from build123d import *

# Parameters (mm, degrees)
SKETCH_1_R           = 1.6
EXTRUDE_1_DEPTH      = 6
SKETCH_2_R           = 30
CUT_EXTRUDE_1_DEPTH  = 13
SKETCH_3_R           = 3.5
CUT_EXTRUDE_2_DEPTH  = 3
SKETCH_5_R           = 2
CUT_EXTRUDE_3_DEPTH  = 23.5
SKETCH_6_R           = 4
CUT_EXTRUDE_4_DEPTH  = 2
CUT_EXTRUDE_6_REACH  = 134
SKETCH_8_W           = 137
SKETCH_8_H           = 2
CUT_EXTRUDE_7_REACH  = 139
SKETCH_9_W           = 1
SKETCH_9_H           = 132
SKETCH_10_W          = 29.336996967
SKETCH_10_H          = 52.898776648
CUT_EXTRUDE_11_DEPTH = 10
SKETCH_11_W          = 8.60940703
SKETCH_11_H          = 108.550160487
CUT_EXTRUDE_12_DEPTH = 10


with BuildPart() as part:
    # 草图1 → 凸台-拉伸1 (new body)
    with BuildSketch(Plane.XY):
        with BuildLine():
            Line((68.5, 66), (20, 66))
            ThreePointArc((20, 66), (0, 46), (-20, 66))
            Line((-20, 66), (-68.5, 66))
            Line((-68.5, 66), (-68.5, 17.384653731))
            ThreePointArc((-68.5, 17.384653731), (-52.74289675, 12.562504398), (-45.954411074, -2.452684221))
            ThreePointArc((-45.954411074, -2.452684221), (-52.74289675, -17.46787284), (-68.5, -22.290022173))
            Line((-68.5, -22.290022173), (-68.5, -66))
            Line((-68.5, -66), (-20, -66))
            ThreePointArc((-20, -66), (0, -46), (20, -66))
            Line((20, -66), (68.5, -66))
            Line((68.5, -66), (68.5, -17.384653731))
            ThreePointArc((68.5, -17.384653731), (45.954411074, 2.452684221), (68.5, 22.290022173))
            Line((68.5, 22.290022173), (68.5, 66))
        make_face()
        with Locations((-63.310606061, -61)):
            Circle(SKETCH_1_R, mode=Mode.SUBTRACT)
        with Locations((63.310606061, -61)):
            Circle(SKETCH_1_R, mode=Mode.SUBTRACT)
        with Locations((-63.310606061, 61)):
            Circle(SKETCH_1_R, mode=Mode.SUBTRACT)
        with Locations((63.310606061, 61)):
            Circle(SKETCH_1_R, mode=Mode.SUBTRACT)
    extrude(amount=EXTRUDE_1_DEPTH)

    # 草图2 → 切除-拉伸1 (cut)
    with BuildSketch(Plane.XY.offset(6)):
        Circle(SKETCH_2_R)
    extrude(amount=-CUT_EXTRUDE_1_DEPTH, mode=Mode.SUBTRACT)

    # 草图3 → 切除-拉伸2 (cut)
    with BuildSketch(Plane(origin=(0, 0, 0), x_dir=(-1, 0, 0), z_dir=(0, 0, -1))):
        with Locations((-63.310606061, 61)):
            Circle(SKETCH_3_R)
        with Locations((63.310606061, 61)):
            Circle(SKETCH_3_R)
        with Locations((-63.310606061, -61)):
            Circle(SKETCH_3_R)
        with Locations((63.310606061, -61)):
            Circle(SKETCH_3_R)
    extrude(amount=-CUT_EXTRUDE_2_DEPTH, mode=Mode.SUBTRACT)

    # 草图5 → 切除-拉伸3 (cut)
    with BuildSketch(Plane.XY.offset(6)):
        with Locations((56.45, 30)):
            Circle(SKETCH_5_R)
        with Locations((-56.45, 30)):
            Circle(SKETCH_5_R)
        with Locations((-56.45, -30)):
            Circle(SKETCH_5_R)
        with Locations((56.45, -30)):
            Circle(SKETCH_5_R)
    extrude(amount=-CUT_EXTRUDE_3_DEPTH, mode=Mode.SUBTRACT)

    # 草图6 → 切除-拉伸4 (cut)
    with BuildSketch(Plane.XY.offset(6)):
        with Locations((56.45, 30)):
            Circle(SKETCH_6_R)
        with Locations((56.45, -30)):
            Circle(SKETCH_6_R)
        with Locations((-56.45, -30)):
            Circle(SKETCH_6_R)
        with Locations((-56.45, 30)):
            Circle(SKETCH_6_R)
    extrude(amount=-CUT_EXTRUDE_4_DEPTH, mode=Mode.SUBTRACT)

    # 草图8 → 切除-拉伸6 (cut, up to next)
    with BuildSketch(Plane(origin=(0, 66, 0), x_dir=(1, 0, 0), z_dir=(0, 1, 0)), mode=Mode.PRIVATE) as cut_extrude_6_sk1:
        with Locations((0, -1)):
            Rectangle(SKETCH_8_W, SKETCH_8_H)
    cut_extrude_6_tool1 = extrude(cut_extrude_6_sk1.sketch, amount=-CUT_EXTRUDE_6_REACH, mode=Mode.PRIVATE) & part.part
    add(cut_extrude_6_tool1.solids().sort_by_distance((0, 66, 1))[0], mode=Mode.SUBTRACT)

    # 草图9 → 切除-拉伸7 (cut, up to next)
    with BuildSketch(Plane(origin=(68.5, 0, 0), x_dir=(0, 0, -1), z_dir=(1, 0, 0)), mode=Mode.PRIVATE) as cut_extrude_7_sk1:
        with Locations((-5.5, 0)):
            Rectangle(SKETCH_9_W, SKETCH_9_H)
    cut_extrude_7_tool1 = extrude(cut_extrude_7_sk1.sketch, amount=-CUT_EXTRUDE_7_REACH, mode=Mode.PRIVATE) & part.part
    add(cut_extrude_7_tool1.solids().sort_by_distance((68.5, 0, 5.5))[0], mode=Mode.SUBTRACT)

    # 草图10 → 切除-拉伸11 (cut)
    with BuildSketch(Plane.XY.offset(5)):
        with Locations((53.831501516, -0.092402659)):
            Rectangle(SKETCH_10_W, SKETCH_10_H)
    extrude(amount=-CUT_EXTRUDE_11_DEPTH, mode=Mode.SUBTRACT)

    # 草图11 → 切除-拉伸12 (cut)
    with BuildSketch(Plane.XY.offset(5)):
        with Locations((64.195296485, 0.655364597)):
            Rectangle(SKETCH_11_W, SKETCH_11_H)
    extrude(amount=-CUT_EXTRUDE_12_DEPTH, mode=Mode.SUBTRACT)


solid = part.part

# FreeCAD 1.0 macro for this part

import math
import FreeCAD as App
import Part
import Sketcher

V = App.Vector

doc = App.newDocument("Part")
body = doc.addObject("PartDesign::Body", "Body")

# Sketch on XY plane
sketch1 = body.newObject("Sketcher::SketchObject", "Sketch")
sketch1.AttachmentSupport = (doc.getObject("XY_Plane"), [""])
sketch1.MapMode = "FlatFace"
sketch1.addGeometry(Part.LineSegment(V(68.5, 66, 0), V(20, 66, 0)), False)
sketch1.addGeometry(Part.ArcOfCircle(Part.Circle(V(0, 66, 0), V(0, 0, 1), 20), math.radians(180), math.radians(360)), False)
sketch1.addGeometry(Part.LineSegment(V(-20, 66, 0), V(-68.5, 66, 0)), False)
sketch1.addGeometry(Part.LineSegment(V(-68.5, 66, 0), V(-68.5, 17.4, 0)), False)
sketch1.addGeometry(Part.ArcOfCircle(Part.Circle(V(-66, -2.5, 0), V(0, 0, 1), 20), math.radians(0), math.radians(97)), False)
sketch1.addGeometry(Part.ArcOfCircle(Part.Circle(V(-66, -2.5, 0), V(0, 0, 1), 20), math.radians(-97), math.radians(0)), False)
sketch1.addGeometry(Part.LineSegment(V(-68.5, -22.3, 0), V(-68.5, -66, 0)), False)
sketch1.addGeometry(Part.LineSegment(V(-68.5, -66, 0), V(-20, -66, 0)), False)
sketch1.addGeometry(Part.ArcOfCircle(Part.Circle(V(0, -66, 0), V(0, 0, 1), 20), math.radians(0), math.radians(180)), False)
sketch1.addGeometry(Part.LineSegment(V(20, -66, 0), V(68.5, -66, 0)), False)
sketch1.addGeometry(Part.LineSegment(V(68.5, -66, 0), V(68.5, -17.4, 0)), False)
sketch1.addGeometry(Part.ArcOfCircle(Part.Circle(V(66, 2.5, 0), V(0, 0, 1), 20), math.radians(83), math.radians(277)), False)
sketch1.addGeometry(Part.LineSegment(V(68.5, 22.3, 0), V(68.5, 66, 0)), False)
sketch1.addGeometry(Part.Circle(V(-63.3, -61, 0), V(0, 0, 1), 1.6), False)
sketch1.addGeometry(Part.Circle(V(63.3, -61, 0), V(0, 0, 1), 1.6), False)
sketch1.addGeometry(Part.Circle(V(-63.3, 61, 0), V(0, 0, 1), 1.6), False)
sketch1.addGeometry(Part.Circle(V(63.3, 61, 0), V(0, 0, 1), 1.6), False)
sketch1.addConstraint(Sketcher.Constraint("Coincident", 0, 2, 1, 2))
sketch1.addConstraint(Sketcher.Constraint("Coincident", 1, 1, 2, 1))
sketch1.addConstraint(Sketcher.Constraint("Coincident", 2, 2, 3, 1))
sketch1.addConstraint(Sketcher.Constraint("Coincident", 3, 2, 4, 2))
sketch1.addConstraint(Sketcher.Constraint("Tangent", 4, 1, 5, 2))
sketch1.addConstraint(Sketcher.Constraint("Coincident", 5, 1, 6, 1))
sketch1.addConstraint(Sketcher.Constraint("Coincident", 6, 2, 7, 1))
sketch1.addConstraint(Sketcher.Constraint("Coincident", 7, 2, 8, 2))
sketch1.addConstraint(Sketcher.Constraint("Coincident", 8, 1, 9, 1))
sketch1.addConstraint(Sketcher.Constraint("Coincident", 9, 2, 10, 1))
sketch1.addConstraint(Sketcher.Constraint("Coincident", 10, 2, 11, 2))
sketch1.addConstraint(Sketcher.Constraint("Coincident", 11, 1, 12, 1))
sketch1.addConstraint(Sketcher.Constraint("Coincident", 12, 2, 0, 1))
sketch1.addConstraint(Sketcher.Constraint("Horizontal", 0))
sketch1.addConstraint(Sketcher.Constraint("Horizontal", 2))
sketch1.addConstraint(Sketcher.Constraint("Vertical", 3))
sketch1.addConstraint(Sketcher.Constraint("Vertical", 6))
sketch1.addConstraint(Sketcher.Constraint("Horizontal", 7))
sketch1.addConstraint(Sketcher.Constraint("Horizontal", 9))
sketch1.addConstraint(Sketcher.Constraint("Vertical", 10))
sketch1.addConstraint(Sketcher.Constraint("Vertical", 12))
sketch1.addConstraint(Sketcher.Constraint("Equal", 1, 4))
sketch1.addConstraint(Sketcher.Constraint("Equal", 4, 5))
sketch1.addConstraint(Sketcher.Constraint("Equal", 5, 8))
sketch1.addConstraint(Sketcher.Constraint("Equal", 8, 11))
sketch1.addConstraint(Sketcher.Constraint("Equal", 13, 14))
sketch1.addConstraint(Sketcher.Constraint("Equal", 14, 15))
sketch1.addConstraint(Sketcher.Constraint("Equal", 15, 16))
sketch1.addConstraint(Sketcher.Constraint("Symmetric", 1, 3, 8, 3, -1, 1))
sketch1.addConstraint(Sketcher.Constraint("Symmetric", 4, 3, 11, 3, -1, 1))
sketch1.addConstraint(Sketcher.Constraint("Symmetric", 14, 3, 15, 3, -1, 1))
sketch1.addConstraint(Sketcher.Constraint("Symmetric", 13, 3, 16, 3, -1, 1))
sketch1.addConstraint(Sketcher.Constraint("Symmetric", 2, 2, 9, 2, -1, 1))
sketch1.addConstraint(Sketcher.Constraint("Symmetric", 6, 2, 12, 2, -1, 1))
sketch1.addConstraint(Sketcher.Constraint("Symmetric", 13, 3, 14, 3, -2))
sketch1.addConstraint(Sketcher.Constraint("Symmetric", 0, 2, 1, 1, -2))
sketch1.addConstraint(Sketcher.Constraint("Horizontal", 1, 3, 0, 2))
sketch1.addConstraint(Sketcher.Constraint("Horizontal", 5, 3, 4, 1))
sketch1.addConstraint(Sketcher.Constraint("Vertical", 3, 2, 5, 1))
sketch1.addConstraint(Sketcher.Constraint("Radius", 1, 20.0))
sketch1.addConstraint(Sketcher.Constraint("Diameter", 13, 3.2))
sketch1.addConstraint(Sketcher.Constraint("DistanceX", 0, 2, 0, 1, 48.5))
sketch1.addConstraint(Sketcher.Constraint("DistanceY", -1, 1, 1, 3, 66.0))
sketch1.addConstraint(Sketcher.Constraint("DistanceY", 13, 3, -1, 1, 61.0))
sketch1.addConstraint(Sketcher.Constraint("DistanceY", 3, 2, 3, 1, 48.615346))
sketch1.addConstraint(Sketcher.Constraint("DistanceY", 6, 2, 6, 1, 43.709978))
sketch1.addConstraint(Sketcher.Constraint("DistanceX", 13, 3, -1, 1, 63.310606))
pad1 = body.newObject("PartDesign::Pad", "Pad")
pad1.Profile = sketch1
pad1.Length = 6

# Sketch on XY plane
sketch2 = body.newObject("Sketcher::SketchObject", "Sketch001")
sketch2.AttachmentSupport = (doc.getObject("XY_Plane"), [""])
sketch2.MapMode = "FlatFace"
sketch2.AttachmentOffset = App.Placement(V(0, 0, 6), App.Rotation())
sketch2.addGeometry(Part.Circle(V(0, 0, 0), V(0, 0, 1), 30), False)
sketch2.addConstraint(Sketcher.Constraint("Coincident", 0, 3, -1, 1))
sketch2.addConstraint(Sketcher.Constraint("Diameter", 0, 60.0))
pocket1 = body.newObject("PartDesign::Pocket", "Pocket")
pocket1.Profile = sketch2
pocket1.Length = 13

# Sketch on XY plane
sketch3 = body.newObject("Sketcher::SketchObject", "Sketch002")
sketch3.AttachmentSupport = (doc.getObject("XY_Plane"), [""])
sketch3.MapMode = "FlatFace"
sketch3.addGeometry(Part.Circle(V(63.3, 61, 0), V(0, 0, 1), 3.5), False)
sketch3.addGeometry(Part.Circle(V(-63.3, 61, 0), V(0, 0, 1), 3.5), False)
sketch3.addGeometry(Part.Circle(V(63.3, -61, 0), V(0, 0, 1), 3.5), False)
sketch3.addGeometry(Part.Circle(V(-63.3, -61, 0), V(0, 0, 1), 3.5), False)
sketch3.addConstraint(Sketcher.Constraint("Equal", 0, 1))
sketch3.addConstraint(Sketcher.Constraint("Equal", 1, 2))
sketch3.addConstraint(Sketcher.Constraint("Equal", 2, 3))
sketch3.addConstraint(Sketcher.Constraint("Symmetric", 1, 3, 2, 3, -1, 1))
sketch3.addConstraint(Sketcher.Constraint("Symmetric", 0, 3, 3, 3, -1, 1))
sketch3.addConstraint(Sketcher.Constraint("Symmetric", 0, 3, 1, 3, -2))
sketch3.addConstraint(Sketcher.Constraint("Diameter", 0, 7.0))
sketch3.addConstraint(Sketcher.Constraint("DistanceY", -1, 1, 0, 3, 61.0))
sketch3.addConstraint(Sketcher.Constraint("DistanceX", -1, 1, 0, 3, 63.310606))
pocket2 = body.newObject("PartDesign::Pocket", "Pocket001")
pocket2.Profile = sketch3
pocket2.Length = 3
pocket2.Reversed = True

# Sketch on XY plane
sketch4 = body.newObject("Sketcher::SketchObject", "Sketch003")
sketch4.AttachmentSupport = (doc.getObject("XY_Plane"), [""])
sketch4.MapMode = "FlatFace"
sketch4.AttachmentOffset = App.Placement(V(0, 0, 6), App.Rotation())
sketch4.addGeometry(Part.Circle(V(56.5, 30, 0), V(0, 0, 1), 2), False)
sketch4.addGeometry(Part.Circle(V(-56.5, 30, 0), V(0, 0, 1), 2), False)
sketch4.addGeometry(Part.Circle(V(-56.5, -30, 0), V(0, 0, 1), 2), False)
sketch4.addGeometry(Part.Circle(V(56.5, -30, 0), V(0, 0, 1), 2), False)
sketch4.addConstraint(Sketcher.Constraint("Equal", 0, 1))
sketch4.addConstraint(Sketcher.Constraint("Equal", 1, 2))
sketch4.addConstraint(Sketcher.Constraint("Equal", 2, 3))
sketch4.addConstraint(Sketcher.Constraint("Symmetric", 0, 3, 2, 3, -1, 1))
sketch4.addConstraint(Sketcher.Constraint("Symmetric", 1, 3, 3, 3, -1, 1))
sketch4.addConstraint(Sketcher.Constraint("Symmetric", 0, 3, 1, 3, -2))
sketch4.addConstraint(Sketcher.Constraint("Diameter", 0, 4.0))
sketch4.addConstraint(Sketcher.Constraint("DistanceY", -1, 1, 0, 3, 30.0))
sketch4.addConstraint(Sketcher.Constraint("DistanceX", 1, 3, 0, 3, 112.9))
pocket3 = body.newObject("PartDesign::Pocket", "Pocket002")
pocket3.Profile = sketch4
pocket3.Length = 23.5

# Sketch on XY plane
sketch5 = body.newObject("Sketcher::SketchObject", "Sketch004")
sketch5.AttachmentSupport = (doc.getObject("XY_Plane"), [""])
sketch5.MapMode = "FlatFace"
sketch5.AttachmentOffset = App.Placement(V(0, 0, 6), App.Rotation())
sketch5.addGeometry(Part.Circle(V(56.5, 30, 0), V(0, 0, 1), 4), False)
sketch5.addGeometry(Part.Circle(V(56.5, -30, 0), V(0, 0, 1), 4), False)
sketch5.addGeometry(Part.Circle(V(-56.5, -30, 0), V(0, 0, 1), 4), False)
sketch5.addGeometry(Part.Circle(V(-56.5, 30, 0), V(0, 0, 1), 4), False)
sketch5.addConstraint(Sketcher.Constraint("Equal", 0, 1))
sketch5.addConstraint(Sketcher.Constraint("Equal", 1, 2))
sketch5.addConstraint(Sketcher.Constraint("Equal", 2, 3))
sketch5.addConstraint(Sketcher.Constraint("Symmetric", 0, 3, 2, 3, -1, 1))
sketch5.addConstraint(Sketcher.Constraint("Symmetric", 1, 3, 3, 3, -1, 1))
sketch5.addConstraint(Sketcher.Constraint("Symmetric", 1, 3, 2, 3, -2))
sketch5.addConstraint(Sketcher.Constraint("Diameter", 0, 8.0))
sketch5.addConstraint(Sketcher.Constraint("DistanceY", -1, 1, 0, 3, 30.0))
sketch5.addConstraint(Sketcher.Constraint("DistanceX", 2, 3, 1, 3, 112.9))
pocket4 = body.newObject("PartDesign::Pocket", "Pocket003")
pocket4.Profile = sketch5
pocket4.Length = 2

# Sketch on XZ plane
sketch6 = body.newObject("Sketcher::SketchObject", "Sketch005")
sketch6.AttachmentSupport = (doc.getObject("XZ_Plane"), [""])
sketch6.MapMode = "FlatFace"
sketch6.AttachmentOffset = App.Placement(V(0, 0, -66), App.Rotation())
sketch6.addGeometry(Part.LineSegment(V(-68.5, 0, 0), V(-68.5, 2, 0)), False)
sketch6.addGeometry(Part.LineSegment(V(-68.5, 2, 0), V(68.5, 2, 0)), False)
sketch6.addGeometry(Part.LineSegment(V(68.5, 2, 0), V(68.5, 0, 0)), False)
sketch6.addGeometry(Part.LineSegment(V(68.5, 0, 0), V(-68.5, 0, 0)), False)
sketch6.addConstraint(Sketcher.Constraint("Coincident", 0, 2, 1, 1))
sketch6.addConstraint(Sketcher.Constraint("Coincident", 1, 2, 2, 1))
sketch6.addConstraint(Sketcher.Constraint("Coincident", 2, 2, 3, 1))
sketch6.addConstraint(Sketcher.Constraint("Coincident", 3, 2, 0, 1))
sketch6.addConstraint(Sketcher.Constraint("Vertical", 0))
sketch6.addConstraint(Sketcher.Constraint("Horizontal", 1))
sketch6.addConstraint(Sketcher.Constraint("Vertical", 2))
sketch6.addConstraint(Sketcher.Constraint("Horizontal", 3))
sketch6.addConstraint(Sketcher.Constraint("Symmetric", 2, 2, 3, 2, -1, 1))
sketch6.addConstraint(Sketcher.Constraint("DistanceX", 1, 1, 1, 2, 137.0))
sketch6.addConstraint(Sketcher.Constraint("DistanceY", 0, 1, 0, 2, 2.0))
pocket5 = body.newObject("PartDesign::Pocket", "Pocket004")
pocket5.Profile = sketch6
pocket5.Length = 132
pocket5.Reversed = True

# Sketch on YZ plane
sketch7 = body.newObject("Sketcher::SketchObject", "Sketch006")
sketch7.AttachmentSupport = (doc.getObject("YZ_Plane"), [""])
sketch7.MapMode = "FlatFace"
sketch7.AttachmentOffset = App.Placement(V(0, 0, 68.5), App.Rotation())
sketch7.addGeometry(Part.LineSegment(V(66, 6, 0), V(-66, 6, 0)), False)
sketch7.addGeometry(Part.LineSegment(V(-66, 6, 0), V(-66, 5, 0)), False)
sketch7.addGeometry(Part.LineSegment(V(-66, 5, 0), V(66, 5, 0)), False)
sketch7.addGeometry(Part.LineSegment(V(66, 5, 0), V(66, 6, 0)), False)
sketch7.addConstraint(Sketcher.Constraint("Coincident", 0, 2, 1, 1))
sketch7.addConstraint(Sketcher.Constraint("Coincident", 1, 2, 2, 1))
sketch7.addConstraint(Sketcher.Constraint("Coincident", 2, 2, 3, 1))
sketch7.addConstraint(Sketcher.Constraint("Coincident", 3, 2, 0, 1))
sketch7.addConstraint(Sketcher.Constraint("Horizontal", 0))
sketch7.addConstraint(Sketcher.Constraint("Vertical", 1))
sketch7.addConstraint(Sketcher.Constraint("Horizontal", 2))
sketch7.addConstraint(Sketcher.Constraint("Vertical", 3))
sketch7.addConstraint(Sketcher.Constraint("DistanceX", 0, 2, 0, 1, 132.0))
sketch7.addConstraint(Sketcher.Constraint("DistanceY", 1, 2, 1, 1, 1.0))
sketch7.addConstraint(Sketcher.Constraint("DistanceX", 0, 2, -1, 1, 66.0))
sketch7.addConstraint(Sketcher.Constraint("DistanceY", -1, 1, 0, 2, 6.0))
pocket6 = body.newObject("PartDesign::Pocket", "Pocket005")
pocket6.Profile = sketch7
pocket6.Length = 137

# Sketch on XY plane
sketch8 = body.newObject("Sketcher::SketchObject", "Sketch007")
sketch8.AttachmentSupport = (doc.getObject("XY_Plane"), [""])
sketch8.MapMode = "FlatFace"
sketch8.AttachmentOffset = App.Placement(V(0, 0, 5), App.Rotation())
sketch8.addGeometry(Part.LineSegment(V(39, 26, 0), V(39, -27, 0)), False)
sketch8.addGeometry(Part.LineSegment(V(39, -27, 0), V(68, -27, 0)), False)
sketch8.addGeometry(Part.LineSegment(V(68, -27, 0), V(68, 26, 0)), False)
sketch8.addGeometry(Part.LineSegment(V(68, 26, 0), V(39, 26, 0)), False)
sketch8.addConstraint(Sketcher.Constraint("Coincident", 0, 2, 1, 1))
sketch8.addConstraint(Sketcher.Constraint("Coincident", 1, 2, 2, 1))
sketch8.addConstraint(Sketcher.Constraint("Coincident", 2, 2, 3, 1))
sketch8.addConstraint(Sketcher.Constraint("Coincident", 3, 2, 0, 1))
sketch8.addConstraint(Sketcher.Constraint("Vertical", 0))
sketch8.addConstraint(Sketcher.Constraint("Horizontal", 1))
sketch8.addConstraint(Sketcher.Constraint("Vertical", 2))
sketch8.addConstraint(Sketcher.Constraint("Horizontal", 3))
sketch8.addConstraint(Sketcher.Constraint("DistanceX", -1, 1, 1, 2, 68.5))
sketch8.addConstraint(Sketcher.Constraint("DistanceX", 1, 1, 1, 2, 29.336997))
sketch8.addConstraint(Sketcher.Constraint("DistanceY", 0, 2, 0, 1, 52.898777))
sketch8.addConstraint(Sketcher.Constraint("DistanceY", 0, 2, -1, 1, 26.541791))
pocket7 = body.newObject("PartDesign::Pocket", "Pocket006")
pocket7.Profile = sketch8
pocket7.Length = 10

# Sketch on XY plane
sketch9 = body.newObject("Sketcher::SketchObject", "Sketch008")
sketch9.AttachmentSupport = (doc.getObject("XY_Plane"), [""])
sketch9.MapMode = "FlatFace"
sketch9.AttachmentOffset = App.Placement(V(0, 0, 5), App.Rotation())
sketch9.addGeometry(Part.LineSegment(V(60, 55, 0), V(60, -54, 0)), False)
sketch9.addGeometry(Part.LineSegment(V(60, -54, 0), V(68, -54, 0)), False)
sketch9.addGeometry(Part.LineSegment(V(68, -54, 0), V(68, 55, 0)), False)
sketch9.addGeometry(Part.LineSegment(V(68, 55, 0), V(60, 55, 0)), False)
sketch9.addConstraint(Sketcher.Constraint("Coincident", 0, 2, 1, 1))
sketch9.addConstraint(Sketcher.Constraint("Coincident", 1, 2, 2, 1))
sketch9.addConstraint(Sketcher.Constraint("Coincident", 2, 2, 3, 1))
sketch9.addConstraint(Sketcher.Constraint("Coincident", 3, 2, 0, 1))
sketch9.addConstraint(Sketcher.Constraint("Vertical", 0))
sketch9.addConstraint(Sketcher.Constraint("Horizontal", 1))
sketch9.addConstraint(Sketcher.Constraint("Vertical", 2))
sketch9.addConstraint(Sketcher.Constraint("Horizontal", 3))
sketch9.addConstraint(Sketcher.Constraint("DistanceX", -1, 1, 1, 2, 68.5))
sketch9.addConstraint(Sketcher.Constraint("DistanceY", 0, 2, 0, 1, 108.55016))
sketch9.addConstraint(Sketcher.Constraint("DistanceX", 1, 1, 1, 2, 8.609407))
sketch9.addConstraint(Sketcher.Constraint("DistanceY", 0, 2, -1, 1, 53.619716))
pocket8 = body.newObject("PartDesign::Pocket", "Pocket007")
pocket8.Profile = sketch9
pocket8.Length = 10

doc.recompute()
